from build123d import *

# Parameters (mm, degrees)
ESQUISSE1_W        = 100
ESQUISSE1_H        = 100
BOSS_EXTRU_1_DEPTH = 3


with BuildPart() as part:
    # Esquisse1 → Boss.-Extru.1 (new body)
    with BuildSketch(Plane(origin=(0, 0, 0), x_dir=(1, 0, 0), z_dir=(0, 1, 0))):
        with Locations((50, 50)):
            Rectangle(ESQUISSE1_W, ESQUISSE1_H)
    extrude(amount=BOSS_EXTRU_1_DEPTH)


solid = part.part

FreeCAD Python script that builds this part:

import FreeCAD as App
import Part
import Sketcher

V = App.Vector


def add_polygon(sketch, points):
    """Adds a closed chain of lines whose ends are joined by coincident constraints."""
    first, n = sketch.GeometryCount, len(points)
    for a, b in zip(points, points[1:] + points[:1]):
        sketch.addGeometry(Part.LineSegment(App.Vector(*a, 0), App.Vector(*b, 0)), False)
    for i in range(n):
        sketch.addConstraint(Sketcher.Constraint("Coincident", first + i, 2, first + (i + 1) % n, 1))

doc = App.newDocument("Part")
body = doc.addObject("PartDesign::Body", "Body")

# Sketch on XZ plane
sketch1 = body.newObject("Sketcher::SketchObject", "Sketch")
sketch1.AttachmentSupport = (doc.getObject("XZ_Plane"), [""])
sketch1.MapMode = "FlatFace"
add_polygon(sketch1, [(0, -100), (0, 0), (100, 0), (100, -100)])  # lines 0-3
sketch1.addConstraint(Sketcher.Constraint("Vertical", 0))
sketch1.addConstraint(Sketcher.Constraint("Horizontal", 1))
sketch1.addConstraint(Sketcher.Constraint("Vertical", 2))
sketch1.addConstraint(Sketcher.Constraint("Horizontal", 3))
sketch1.addConstraint(Sketcher.Constraint("Coincident", 0, 2, -1, 1))
sketch1.addConstraint(Sketcher.Constraint("Equal", 3, 0))
sketch1.addConstraint(Sketcher.Constraint("DistanceX", 1, 1, 1, 2, 100.0))
pad1 = body.newObject("PartDesign::Pad", "Pad")
pad1.Profile = sketch1
pad1.Length = 3
pad1.Reversed = True

doc.recompute()
